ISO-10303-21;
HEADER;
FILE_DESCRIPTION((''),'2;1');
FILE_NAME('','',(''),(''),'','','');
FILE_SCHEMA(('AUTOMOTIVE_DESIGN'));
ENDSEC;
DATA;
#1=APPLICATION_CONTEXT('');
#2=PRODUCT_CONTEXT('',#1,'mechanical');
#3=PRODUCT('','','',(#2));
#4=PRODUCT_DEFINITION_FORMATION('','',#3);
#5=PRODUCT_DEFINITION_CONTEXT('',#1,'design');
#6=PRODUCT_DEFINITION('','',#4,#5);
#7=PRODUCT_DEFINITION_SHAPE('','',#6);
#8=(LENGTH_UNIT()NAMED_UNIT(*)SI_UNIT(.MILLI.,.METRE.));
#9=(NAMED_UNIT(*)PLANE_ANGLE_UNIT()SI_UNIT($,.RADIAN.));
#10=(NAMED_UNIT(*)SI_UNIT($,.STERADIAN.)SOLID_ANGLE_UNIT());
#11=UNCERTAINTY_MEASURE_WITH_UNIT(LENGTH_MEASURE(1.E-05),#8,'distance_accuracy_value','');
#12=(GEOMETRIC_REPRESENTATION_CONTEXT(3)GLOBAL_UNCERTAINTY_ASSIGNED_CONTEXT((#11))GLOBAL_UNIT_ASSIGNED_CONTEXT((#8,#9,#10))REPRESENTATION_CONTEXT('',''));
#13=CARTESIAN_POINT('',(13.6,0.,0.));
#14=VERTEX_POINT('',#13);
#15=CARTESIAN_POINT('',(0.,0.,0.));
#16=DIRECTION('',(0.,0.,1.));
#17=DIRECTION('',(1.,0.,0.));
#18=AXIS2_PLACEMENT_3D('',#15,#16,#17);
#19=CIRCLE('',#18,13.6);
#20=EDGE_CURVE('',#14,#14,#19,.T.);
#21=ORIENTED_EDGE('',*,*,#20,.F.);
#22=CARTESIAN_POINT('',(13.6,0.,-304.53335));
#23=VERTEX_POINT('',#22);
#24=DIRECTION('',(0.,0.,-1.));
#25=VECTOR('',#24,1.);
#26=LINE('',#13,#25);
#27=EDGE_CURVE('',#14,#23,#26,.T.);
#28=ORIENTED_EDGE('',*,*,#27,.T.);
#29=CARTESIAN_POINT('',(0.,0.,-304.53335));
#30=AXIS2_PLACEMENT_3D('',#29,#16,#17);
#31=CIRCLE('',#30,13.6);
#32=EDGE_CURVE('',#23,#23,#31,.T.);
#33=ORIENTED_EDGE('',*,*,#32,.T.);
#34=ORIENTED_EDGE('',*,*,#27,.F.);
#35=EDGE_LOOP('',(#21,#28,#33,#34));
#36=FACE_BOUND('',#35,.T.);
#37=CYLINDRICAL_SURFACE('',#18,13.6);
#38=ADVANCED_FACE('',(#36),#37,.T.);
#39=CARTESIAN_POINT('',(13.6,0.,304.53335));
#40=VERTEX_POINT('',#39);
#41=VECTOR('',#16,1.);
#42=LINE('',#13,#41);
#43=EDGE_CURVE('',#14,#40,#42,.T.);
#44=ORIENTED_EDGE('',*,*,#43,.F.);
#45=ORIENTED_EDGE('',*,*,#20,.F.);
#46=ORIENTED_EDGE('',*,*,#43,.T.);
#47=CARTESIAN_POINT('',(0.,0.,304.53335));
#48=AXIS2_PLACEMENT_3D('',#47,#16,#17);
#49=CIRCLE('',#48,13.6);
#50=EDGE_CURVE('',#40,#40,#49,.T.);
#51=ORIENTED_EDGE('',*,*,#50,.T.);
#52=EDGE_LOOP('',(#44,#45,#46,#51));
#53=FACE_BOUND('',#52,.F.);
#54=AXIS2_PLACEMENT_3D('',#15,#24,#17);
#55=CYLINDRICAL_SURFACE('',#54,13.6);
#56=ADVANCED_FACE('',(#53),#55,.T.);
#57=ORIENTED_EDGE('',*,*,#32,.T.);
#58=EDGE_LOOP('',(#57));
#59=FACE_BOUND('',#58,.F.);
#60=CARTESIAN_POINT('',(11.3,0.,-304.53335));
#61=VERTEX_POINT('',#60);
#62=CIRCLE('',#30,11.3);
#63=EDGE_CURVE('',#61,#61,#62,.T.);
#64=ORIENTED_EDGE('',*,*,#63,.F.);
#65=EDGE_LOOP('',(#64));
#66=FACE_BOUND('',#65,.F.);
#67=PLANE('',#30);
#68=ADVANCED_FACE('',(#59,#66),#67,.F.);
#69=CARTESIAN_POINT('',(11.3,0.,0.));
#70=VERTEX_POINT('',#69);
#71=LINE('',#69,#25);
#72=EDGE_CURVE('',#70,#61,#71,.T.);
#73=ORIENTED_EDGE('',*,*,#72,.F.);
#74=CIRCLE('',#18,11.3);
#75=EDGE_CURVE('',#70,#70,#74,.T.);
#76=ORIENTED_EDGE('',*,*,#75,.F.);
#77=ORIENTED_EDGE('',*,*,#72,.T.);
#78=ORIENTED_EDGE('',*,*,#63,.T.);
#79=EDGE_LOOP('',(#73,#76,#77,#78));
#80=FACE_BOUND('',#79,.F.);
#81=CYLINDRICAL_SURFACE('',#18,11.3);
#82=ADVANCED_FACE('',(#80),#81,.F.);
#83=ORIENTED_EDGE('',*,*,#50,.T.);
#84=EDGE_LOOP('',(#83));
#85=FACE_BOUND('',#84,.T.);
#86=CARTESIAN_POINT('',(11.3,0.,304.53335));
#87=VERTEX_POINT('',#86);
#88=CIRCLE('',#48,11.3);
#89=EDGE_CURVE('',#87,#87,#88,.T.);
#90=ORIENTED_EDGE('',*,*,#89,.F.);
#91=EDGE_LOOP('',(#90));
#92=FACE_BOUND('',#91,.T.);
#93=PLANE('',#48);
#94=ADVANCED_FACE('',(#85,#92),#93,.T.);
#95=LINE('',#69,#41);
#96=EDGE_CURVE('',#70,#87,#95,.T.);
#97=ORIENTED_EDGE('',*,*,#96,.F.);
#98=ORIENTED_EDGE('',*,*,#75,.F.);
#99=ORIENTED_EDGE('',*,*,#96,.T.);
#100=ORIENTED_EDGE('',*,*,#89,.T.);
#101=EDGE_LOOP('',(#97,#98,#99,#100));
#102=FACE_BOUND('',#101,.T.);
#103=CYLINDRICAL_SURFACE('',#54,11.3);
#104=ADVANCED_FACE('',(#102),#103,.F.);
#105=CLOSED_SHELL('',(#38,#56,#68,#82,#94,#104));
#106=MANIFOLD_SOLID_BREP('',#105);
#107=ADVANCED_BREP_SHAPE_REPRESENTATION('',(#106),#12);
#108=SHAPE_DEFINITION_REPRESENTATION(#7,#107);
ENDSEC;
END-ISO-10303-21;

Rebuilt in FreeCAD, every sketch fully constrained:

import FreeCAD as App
import Part
import Sketcher

doc = App.newDocument("Part")
params = doc.addObject("Spreadsheet::Sheet", "Params")
for row, (alias, value) in enumerate([
    ("sketch1_diameter", "27.2 mm"),
    ("sketch1_diameter2", "22.6 mm"),
    ("pad1_length", "609.0667 mm"),
], start=1):
    params.set(f"A{row}", alias)
    params.set(f"B{row}", "=" + value)
    params.setAlias(f"B{row}", alias)

body = doc.addObject("PartDesign::Body", "Body")

sketch1 = body.newObject("Sketcher::SketchObject", "Sketch")
sketch1.AttachmentSupport = (doc.getObject("XY_Plane"), [""])
sketch1.MapMode = "FlatFace"
sketch1.addGeometry([
    Part.Circle(App.Vector(0, 0, 0), App.Vector(0, 0, 1), 13.6),
    Part.Circle(App.Vector(0, 0, 0), App.Vector(0, 0, 1), 11.3),
], False)
sketch1.addConstraint([
    Sketcher.Constraint("Coincident", 0, 3, -1, 1),
    Sketcher.Constraint("Coincident", 1, 3, -1, 1),
    Sketcher.Constraint("Diameter", 0, 27.2),
    Sketcher.Constraint("Diameter", 1, 22.6),
])
sketch1.setExpression("Constraints[2]", "Params.sketch1_diameter")
sketch1.setExpression("Constraints[3]", "Params.sketch1_diameter2")
pad1 = body.newObject("PartDesign::Pad", "Pad")
pad1.Profile = sketch1
pad1.setExpression("Length", "Params.pad1_length")
pad1.Midplane = True

doc.recompute()
